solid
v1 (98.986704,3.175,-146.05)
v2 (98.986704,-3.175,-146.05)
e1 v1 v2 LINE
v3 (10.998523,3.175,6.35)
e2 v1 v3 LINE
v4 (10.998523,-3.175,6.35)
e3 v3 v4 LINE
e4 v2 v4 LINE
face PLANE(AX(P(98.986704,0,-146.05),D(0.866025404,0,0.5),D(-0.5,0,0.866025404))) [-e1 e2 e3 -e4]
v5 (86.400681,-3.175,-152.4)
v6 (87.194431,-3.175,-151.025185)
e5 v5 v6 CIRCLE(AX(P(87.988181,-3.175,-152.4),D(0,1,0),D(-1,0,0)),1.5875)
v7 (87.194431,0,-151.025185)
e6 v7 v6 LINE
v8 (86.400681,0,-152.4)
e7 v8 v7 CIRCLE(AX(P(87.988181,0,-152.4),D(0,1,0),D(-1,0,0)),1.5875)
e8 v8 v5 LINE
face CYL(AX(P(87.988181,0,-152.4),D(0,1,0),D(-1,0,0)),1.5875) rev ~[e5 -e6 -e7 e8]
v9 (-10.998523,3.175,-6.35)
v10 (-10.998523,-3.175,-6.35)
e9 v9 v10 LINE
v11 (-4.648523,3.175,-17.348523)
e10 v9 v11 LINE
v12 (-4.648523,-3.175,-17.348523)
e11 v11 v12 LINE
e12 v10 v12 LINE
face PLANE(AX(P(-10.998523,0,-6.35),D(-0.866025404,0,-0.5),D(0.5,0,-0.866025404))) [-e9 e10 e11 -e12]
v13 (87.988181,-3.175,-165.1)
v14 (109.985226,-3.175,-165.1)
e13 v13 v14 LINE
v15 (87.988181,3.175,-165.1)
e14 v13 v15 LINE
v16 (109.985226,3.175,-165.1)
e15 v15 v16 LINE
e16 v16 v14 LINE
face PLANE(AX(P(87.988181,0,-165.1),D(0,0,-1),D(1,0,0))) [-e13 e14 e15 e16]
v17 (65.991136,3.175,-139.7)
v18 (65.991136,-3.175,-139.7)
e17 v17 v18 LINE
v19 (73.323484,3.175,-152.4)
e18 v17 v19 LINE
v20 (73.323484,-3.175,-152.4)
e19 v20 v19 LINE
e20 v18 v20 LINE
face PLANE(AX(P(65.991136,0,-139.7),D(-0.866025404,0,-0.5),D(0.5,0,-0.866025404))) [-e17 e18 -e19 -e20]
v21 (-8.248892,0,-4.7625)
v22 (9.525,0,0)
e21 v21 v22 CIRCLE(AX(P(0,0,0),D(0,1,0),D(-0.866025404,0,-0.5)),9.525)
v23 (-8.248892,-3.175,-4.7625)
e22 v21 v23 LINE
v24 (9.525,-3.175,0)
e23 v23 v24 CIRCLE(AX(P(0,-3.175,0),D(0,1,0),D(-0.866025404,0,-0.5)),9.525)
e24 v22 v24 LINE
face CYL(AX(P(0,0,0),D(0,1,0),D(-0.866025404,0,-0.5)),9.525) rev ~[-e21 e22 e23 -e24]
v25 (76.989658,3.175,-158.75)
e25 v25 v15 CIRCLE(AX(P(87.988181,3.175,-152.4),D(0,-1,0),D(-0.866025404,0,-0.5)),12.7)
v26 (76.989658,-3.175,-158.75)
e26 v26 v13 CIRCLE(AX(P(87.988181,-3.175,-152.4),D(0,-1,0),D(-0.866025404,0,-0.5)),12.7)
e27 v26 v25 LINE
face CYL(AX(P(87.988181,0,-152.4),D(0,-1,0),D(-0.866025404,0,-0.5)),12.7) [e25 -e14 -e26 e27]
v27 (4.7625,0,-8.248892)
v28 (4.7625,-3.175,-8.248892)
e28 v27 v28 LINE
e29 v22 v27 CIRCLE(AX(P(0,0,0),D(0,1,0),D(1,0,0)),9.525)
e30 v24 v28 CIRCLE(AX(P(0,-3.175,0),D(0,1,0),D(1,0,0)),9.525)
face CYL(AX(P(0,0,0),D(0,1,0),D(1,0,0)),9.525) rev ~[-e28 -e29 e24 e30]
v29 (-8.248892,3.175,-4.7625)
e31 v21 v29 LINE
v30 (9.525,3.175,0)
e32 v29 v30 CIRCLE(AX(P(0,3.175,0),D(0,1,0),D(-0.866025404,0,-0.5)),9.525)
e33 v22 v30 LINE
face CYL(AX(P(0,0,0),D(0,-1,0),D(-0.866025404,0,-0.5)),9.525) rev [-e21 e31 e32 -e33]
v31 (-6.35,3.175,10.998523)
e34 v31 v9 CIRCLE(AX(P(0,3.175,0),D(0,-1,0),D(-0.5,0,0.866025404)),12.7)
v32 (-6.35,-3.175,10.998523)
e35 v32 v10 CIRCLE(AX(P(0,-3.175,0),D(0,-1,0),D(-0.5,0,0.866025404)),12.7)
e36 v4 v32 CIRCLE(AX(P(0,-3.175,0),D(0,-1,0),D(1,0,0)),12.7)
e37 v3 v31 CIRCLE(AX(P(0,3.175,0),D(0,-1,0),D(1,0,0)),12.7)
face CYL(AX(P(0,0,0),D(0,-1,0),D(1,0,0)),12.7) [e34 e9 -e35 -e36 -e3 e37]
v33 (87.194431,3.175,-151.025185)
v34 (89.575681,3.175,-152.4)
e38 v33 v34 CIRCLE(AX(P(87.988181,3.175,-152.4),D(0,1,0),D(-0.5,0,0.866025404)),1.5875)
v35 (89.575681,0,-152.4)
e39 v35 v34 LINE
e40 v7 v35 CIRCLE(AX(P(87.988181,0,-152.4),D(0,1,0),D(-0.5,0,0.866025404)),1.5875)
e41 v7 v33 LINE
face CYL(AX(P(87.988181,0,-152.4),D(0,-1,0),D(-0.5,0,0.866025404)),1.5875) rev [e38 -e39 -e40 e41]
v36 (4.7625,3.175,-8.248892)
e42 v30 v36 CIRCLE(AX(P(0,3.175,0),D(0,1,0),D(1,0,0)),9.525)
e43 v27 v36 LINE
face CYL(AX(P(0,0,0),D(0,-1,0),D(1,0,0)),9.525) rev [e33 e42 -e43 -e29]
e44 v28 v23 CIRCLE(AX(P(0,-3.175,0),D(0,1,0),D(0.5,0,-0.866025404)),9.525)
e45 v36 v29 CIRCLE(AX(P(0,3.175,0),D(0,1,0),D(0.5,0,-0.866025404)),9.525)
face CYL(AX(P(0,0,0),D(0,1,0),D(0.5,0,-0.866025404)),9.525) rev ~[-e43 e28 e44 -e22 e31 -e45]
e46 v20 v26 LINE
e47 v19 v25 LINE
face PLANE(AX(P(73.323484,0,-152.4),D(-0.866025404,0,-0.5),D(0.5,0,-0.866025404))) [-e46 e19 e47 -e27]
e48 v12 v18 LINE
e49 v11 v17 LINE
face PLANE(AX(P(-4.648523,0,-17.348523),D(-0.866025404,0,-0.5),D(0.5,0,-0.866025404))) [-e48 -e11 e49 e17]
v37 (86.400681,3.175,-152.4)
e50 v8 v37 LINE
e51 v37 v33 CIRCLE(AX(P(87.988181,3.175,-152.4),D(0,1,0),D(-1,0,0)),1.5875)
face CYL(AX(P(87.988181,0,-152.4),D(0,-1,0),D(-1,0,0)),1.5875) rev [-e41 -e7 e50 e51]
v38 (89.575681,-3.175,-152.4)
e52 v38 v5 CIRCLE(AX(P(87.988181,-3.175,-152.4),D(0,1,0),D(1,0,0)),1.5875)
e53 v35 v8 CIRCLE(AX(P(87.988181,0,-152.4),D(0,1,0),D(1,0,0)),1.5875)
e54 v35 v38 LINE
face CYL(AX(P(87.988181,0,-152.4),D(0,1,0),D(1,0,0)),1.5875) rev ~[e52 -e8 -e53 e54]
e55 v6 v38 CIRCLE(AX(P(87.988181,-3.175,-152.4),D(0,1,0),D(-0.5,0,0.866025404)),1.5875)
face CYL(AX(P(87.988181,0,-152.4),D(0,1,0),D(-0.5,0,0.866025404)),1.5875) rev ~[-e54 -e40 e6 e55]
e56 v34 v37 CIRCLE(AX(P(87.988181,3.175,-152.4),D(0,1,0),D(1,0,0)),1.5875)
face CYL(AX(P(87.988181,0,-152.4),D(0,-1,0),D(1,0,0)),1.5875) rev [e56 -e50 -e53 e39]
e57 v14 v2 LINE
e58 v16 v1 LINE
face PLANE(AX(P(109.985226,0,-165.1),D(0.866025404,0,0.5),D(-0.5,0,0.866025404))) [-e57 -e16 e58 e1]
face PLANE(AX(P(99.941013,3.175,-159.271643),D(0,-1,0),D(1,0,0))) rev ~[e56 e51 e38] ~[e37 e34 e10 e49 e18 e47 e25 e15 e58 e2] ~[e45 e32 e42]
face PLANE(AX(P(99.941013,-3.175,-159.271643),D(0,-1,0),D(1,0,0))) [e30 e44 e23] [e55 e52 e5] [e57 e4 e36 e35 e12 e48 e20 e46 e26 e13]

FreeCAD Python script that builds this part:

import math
import FreeCAD as App
import Part
import Sketcher
from FreeCAD import Vector
Q = App.Units.Quantity

doc = App.newDocument("Part")
params = doc.addObject("Spreadsheet::Sheet", "Params")
for row, (alias, value) in enumerate([
    ("sketch1_radius", "0.5 in"),
    ("sketch1_radius2", "0.0625 in"),
    ("sketch1_radius3", "0.375 in"),
    ("sketch1_length", "0.5 in"),
    ("pad1_length", "0.25 in"),
], start=1):
    params.set(f"A{row}", alias)
    params.set(f"B{row}", "=" + value)
    params.setAlias(f"B{row}", alias)

body = doc.addObject("PartDesign::Body", "Body")

# Sketch on XZ plane
sketch1 = doc.addObject("Sketcher::SketchObject", "Sketch")
body.addObject(sketch1)
sketch1.AttachmentSupport = (doc.XZ_Plane, [""])
sketch1.MapMode = "FlatFace"
sketch1.addGeometry(Part.LineSegment(Vector(87.988181, -165.1, 0), Vector(109.985226, -165.1, 0)), False)
sketch1.addGeometry(Part.LineSegment(Vector(109.985226, -165.1, 0), Vector(98.986704, -146.05, 0)), False)
sketch1.addGeometry(Part.LineSegment(Vector(98.986704, -146.05, 0), Vector(10.998523, 6.35, 0)), False)
sketch1.addGeometry(Part.ArcOfCircle(Part.Circle(Vector(0, 0, 0), Vector(0, 0, 1), 12.7), math.radians(30), math.radians(120)), False)
sketch1.addGeometry(Part.ArcOfCircle(Part.Circle(Vector(0, 0, 0), Vector(0, 0, 1), 12.7), math.radians(120), math.radians(210)), False)
sketch1.addGeometry(Part.LineSegment(Vector(-10.998523, -6.35, 0), Vector(-4.648523, -17.348523, 0)), False)
sketch1.addGeometry(Part.LineSegment(Vector(-4.648523, -17.348523, 0), Vector(65.991136, -139.7, 0)), False)
sketch1.addGeometry(Part.LineSegment(Vector(65.991136, -139.7, 0), Vector(73.323484, -152.4, 0)), False)
sketch1.addGeometry(Part.LineSegment(Vector(73.323484, -152.4, 0), Vector(76.989658, -158.75, 0)), False)
sketch1.addGeometry(Part.ArcOfCircle(Part.Circle(Vector(87.988181, -152.4, 0), Vector(0, 0, 1), 12.7), math.radians(-150), math.radians(-90)), False)
sketch1.addGeometry(Part.ArcOfCircle(Part.Circle(Vector(87.988181, -152.4, 0), Vector(0, 0, 1), 1.5875), math.radians(0), math.radians(120)), False)
sketch1.addGeometry(Part.ArcOfCircle(Part.Circle(Vector(87.988181, -152.4, 0), Vector(0, 0, 1), 1.5875), math.radians(180), math.radians(360)), False)
sketch1.addGeometry(Part.ArcOfCircle(Part.Circle(Vector(87.988181, -152.4, 0), Vector(0, 0, 1), 1.5875), math.radians(120), math.radians(180)), False)
sketch1.addGeometry(Part.ArcOfCircle(Part.Circle(Vector(0, 0, 0), Vector(0, 0, 1), 9.525), math.radians(0), math.radians(210)), False)
sketch1.addGeometry(Part.ArcOfCircle(Part.Circle(Vector(0, 0, 0), Vector(0, 0, 1), 9.525), math.radians(-60), math.radians(0)), False)
sketch1.addGeometry(Part.ArcOfCircle(Part.Circle(Vector(0, 0, 0), Vector(0, 0, 1), 9.525), math.radians(-150), math.radians(-60)), False)
sketch1.addConstraint(Sketcher.Constraint("Coincident", 0, 2, 1, 1))
sketch1.addConstraint(Sketcher.Constraint("Coincident", 1, 2, 2, 1))
sketch1.addConstraint(Sketcher.Constraint("Tangent", 2, 2, 3, 1))
sketch1.addConstraint(Sketcher.Constraint("Tangent", 3, 2, 4, 1))
sketch1.addConstraint(Sketcher.Constraint("Tangent", 4, 2, 5, 1))
sketch1.addConstraint(Sketcher.Constraint("Coincident", 5, 2, 6, 1))
sketch1.addConstraint(Sketcher.Constraint("Coincident", 6, 2, 7, 1))
sketch1.addConstraint(Sketcher.Constraint("Coincident", 7, 2, 8, 1))
sketch1.addConstraint(Sketcher.Constraint("Tangent", 8, 2, 9, 1))
sketch1.addConstraint(Sketcher.Constraint("Tangent", 9, 2, 0, 1))
sketch1.addConstraint(Sketcher.Constraint("Tangent", 10, 1, 11, 2))
sketch1.addConstraint(Sketcher.Constraint("Tangent", 11, 1, 12, 2))
sketch1.addConstraint(Sketcher.Constraint("Tangent", 12, 1, 10, 2))
sketch1.addConstraint(Sketcher.Constraint("Tangent", 13, 1, 14, 2))
sketch1.addConstraint(Sketcher.Constraint("Tangent", 14, 1, 15, 2))
sketch1.addConstraint(Sketcher.Constraint("Tangent", 15, 1, 13, 2))
sketch1.addConstraint(Sketcher.Constraint("Horizontal", 0))
sketch1.addConstraint(Sketcher.Constraint("Coincident", 3, 3, -1, 1))
sketch1.addConstraint(Sketcher.Constraint("Coincident", 13, 3, -1, 1))
sketch1.addConstraint(Sketcher.Constraint("Coincident", 10, 3, 9, 3))
sketch1.addConstraint(Sketcher.Constraint("Equal", 3, 4))
sketch1.addConstraint(Sketcher.Constraint("Equal", 4, 9))
sketch1.addConstraint(Sketcher.Constraint("PointOnObject", 13, 1, -1))
sketch1.addConstraint(Sketcher.Constraint("Parallel", 1, 2))
sketch1.addConstraint(Sketcher.Constraint("Parallel", 2, 5))
sketch1.addConstraint(Sketcher.Constraint("Parallel", 5, 6))
sketch1.addConstraint(Sketcher.Constraint("Parallel", 6, 7))
sketch1.addConstraint(Sketcher.Constraint("Parallel", 7, 8))
sketch1.addConstraint(Sketcher.Constraint("Horizontal", 12, 3, 7, 2))
sketch1.addConstraint(Sketcher.Constraint("Horizontal", 7, 2, 10, 1))
sketch1.addConstraint(Sketcher.Constraint("Horizontal", 10, 1, 11, 1))
sketch1.addConstraint(Sketcher.Constraint("Radius", 3, Q("0.5 in")))
sketch1.addConstraint(Sketcher.Constraint("DistanceY", 9, 3, -1, 1, Q("6 in")))
sketch1.addConstraint(Sketcher.Constraint("Angle", 1, Q("120 deg")))
sketch1.addConstraint(Sketcher.Constraint("Radius", 10, Q("0.0625 in")))
sketch1.addConstraint(Sketcher.Constraint("Radius", 13, Q("0.375 in")))
sketch1.addConstraint(Sketcher.Constraint("Distance", 5, Q("0.5 in")))
sketch1.addConstraint(Sketcher.Constraint("DistanceY", 6, 2, -1, 1, Q("5.5 in")))
sketch1.addConstraint(Sketcher.Constraint("DistanceY", 1, 2, -1, 1, Q("5.75 in")))
sketch1.addConstraint(Sketcher.Constraint("DistanceX", 3, 2, -1, 1, Q("0.25 in")))
sketch1.addConstraint(Sketcher.Constraint("DistanceX", -1, 1, 14, 1, Q("0.1875 in")))
sketch1.addConstraint(Sketcher.Constraint("DistanceY", 15, 1, -1, 1, Q("0.1875 in")))
sketch1.addConstraint(Sketcher.Constraint("DistanceX", 12, 1, 9, 3, Q("0.03125 in")))
sketch1.setExpression("Constraints[31]", "Params.sketch1_radius")
sketch1.setExpression("Constraints[34]", "Params.sketch1_radius2")
sketch1.setExpression("Constraints[35]", "Params.sketch1_radius3")
sketch1.setExpression("Constraints[36]", "Params.sketch1_length")
pad1 = doc.addObject("PartDesign::Pad", "Pad")
body.addObject(pad1)
pad1.Profile = sketch1
pad1.setExpression("Length", "Params.pad1_length")
pad1.Midplane = True

doc.recompute()
